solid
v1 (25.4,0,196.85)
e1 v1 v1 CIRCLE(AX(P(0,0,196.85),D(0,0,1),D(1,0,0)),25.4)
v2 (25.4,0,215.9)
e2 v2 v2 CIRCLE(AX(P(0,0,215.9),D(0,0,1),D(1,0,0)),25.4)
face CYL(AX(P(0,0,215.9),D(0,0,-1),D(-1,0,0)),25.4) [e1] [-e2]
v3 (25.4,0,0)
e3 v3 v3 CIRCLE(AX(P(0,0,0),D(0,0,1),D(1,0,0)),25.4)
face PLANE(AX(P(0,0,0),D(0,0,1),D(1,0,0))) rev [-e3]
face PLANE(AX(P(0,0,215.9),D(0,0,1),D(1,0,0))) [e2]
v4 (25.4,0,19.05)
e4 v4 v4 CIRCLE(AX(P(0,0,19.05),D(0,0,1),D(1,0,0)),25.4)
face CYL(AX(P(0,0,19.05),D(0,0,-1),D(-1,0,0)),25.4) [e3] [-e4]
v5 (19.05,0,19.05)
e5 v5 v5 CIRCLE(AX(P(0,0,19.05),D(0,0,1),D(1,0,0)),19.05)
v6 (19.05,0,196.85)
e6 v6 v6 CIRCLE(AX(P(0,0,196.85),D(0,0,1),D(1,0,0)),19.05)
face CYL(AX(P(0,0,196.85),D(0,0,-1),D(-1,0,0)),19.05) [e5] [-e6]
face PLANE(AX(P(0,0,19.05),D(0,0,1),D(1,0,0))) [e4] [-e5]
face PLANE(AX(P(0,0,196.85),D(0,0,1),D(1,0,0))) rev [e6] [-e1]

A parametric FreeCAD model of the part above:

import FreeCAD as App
import Part
import Sketcher

V = App.Vector
Q = App.Units.Quantity

doc = App.newDocument("Part")
body = doc.addObject("PartDesign::Body", "Body")

# Sketch on XY plane
sketch1 = doc.addObject("Sketcher::SketchObject", "Sketch")
body.addObject(sketch1)
sketch1.AttachmentSupport = (doc.XY_Plane, [""])
sketch1.MapMode = "FlatFace"
sketch1.addGeometry(Part.Circle(V(0, 0, 0), V(0, 0, 1), 25), False)
sketch1.addConstraint([
    Sketcher.Constraint("Coincident", 0, 3, -1, 1),
    Sketcher.Constraint("Diameter", 0, Q("2 in")),
])
pad1 = doc.addObject("PartDesign::Pad", "Pad")
body.addObject(pad1)
pad1.Profile = sketch1
pad1.Length = Q("0.75 in")

# Sketch on XY plane
sketch2 = doc.addObject("Sketcher::SketchObject", "Sketch001")
body.addObject(sketch2)
sketch2.AttachmentSupport = (doc.XY_Plane, [""])
sketch2.MapMode = "FlatFace"
sketch2.AttachmentOffset = App.Placement(V(0, 0, 0.75 * 25.4), App.Rotation())
sketch2.addGeometry(Part.Circle(V(0, 0, 0), V(0, 0, 1), 19), False)
sketch2.addConstraint([
    Sketcher.Constraint("Coincident", 0, 3, -1, 1),
    Sketcher.Constraint("Diameter", 0, Q("1.5 in")),
])
pad2 = doc.addObject("PartDesign::Pad", "Pad001")
body.addObject(pad2)
pad2.Profile = sketch2
pad2.Length = Q("7 in")

# Sketch on XY plane
sketch3 = doc.addObject("Sketcher::SketchObject", "Sketch002")
body.addObject(sketch3)
sketch3.AttachmentSupport = (doc.XY_Plane, [""])
sketch3.MapMode = "FlatFace"
sketch3.AttachmentOffset = App.Placement(V(0, 0, 7.75 * 25.4), App.Rotation())
sketch3.addGeometry(Part.Circle(V(0, 0, 0), V(0, 0, 1), 25), False)
sketch3.addConstraint([
    Sketcher.Constraint("Coincident", 0, 3, -1, 1),
    Sketcher.Constraint("Diameter", 0, Q("2 in")),
])
pad3 = doc.addObject("PartDesign::Pad", "Pad002")
body.addObject(pad3)
pad3.Profile = sketch3
pad3.Length = Q("0.75 in")

doc.recompute()
